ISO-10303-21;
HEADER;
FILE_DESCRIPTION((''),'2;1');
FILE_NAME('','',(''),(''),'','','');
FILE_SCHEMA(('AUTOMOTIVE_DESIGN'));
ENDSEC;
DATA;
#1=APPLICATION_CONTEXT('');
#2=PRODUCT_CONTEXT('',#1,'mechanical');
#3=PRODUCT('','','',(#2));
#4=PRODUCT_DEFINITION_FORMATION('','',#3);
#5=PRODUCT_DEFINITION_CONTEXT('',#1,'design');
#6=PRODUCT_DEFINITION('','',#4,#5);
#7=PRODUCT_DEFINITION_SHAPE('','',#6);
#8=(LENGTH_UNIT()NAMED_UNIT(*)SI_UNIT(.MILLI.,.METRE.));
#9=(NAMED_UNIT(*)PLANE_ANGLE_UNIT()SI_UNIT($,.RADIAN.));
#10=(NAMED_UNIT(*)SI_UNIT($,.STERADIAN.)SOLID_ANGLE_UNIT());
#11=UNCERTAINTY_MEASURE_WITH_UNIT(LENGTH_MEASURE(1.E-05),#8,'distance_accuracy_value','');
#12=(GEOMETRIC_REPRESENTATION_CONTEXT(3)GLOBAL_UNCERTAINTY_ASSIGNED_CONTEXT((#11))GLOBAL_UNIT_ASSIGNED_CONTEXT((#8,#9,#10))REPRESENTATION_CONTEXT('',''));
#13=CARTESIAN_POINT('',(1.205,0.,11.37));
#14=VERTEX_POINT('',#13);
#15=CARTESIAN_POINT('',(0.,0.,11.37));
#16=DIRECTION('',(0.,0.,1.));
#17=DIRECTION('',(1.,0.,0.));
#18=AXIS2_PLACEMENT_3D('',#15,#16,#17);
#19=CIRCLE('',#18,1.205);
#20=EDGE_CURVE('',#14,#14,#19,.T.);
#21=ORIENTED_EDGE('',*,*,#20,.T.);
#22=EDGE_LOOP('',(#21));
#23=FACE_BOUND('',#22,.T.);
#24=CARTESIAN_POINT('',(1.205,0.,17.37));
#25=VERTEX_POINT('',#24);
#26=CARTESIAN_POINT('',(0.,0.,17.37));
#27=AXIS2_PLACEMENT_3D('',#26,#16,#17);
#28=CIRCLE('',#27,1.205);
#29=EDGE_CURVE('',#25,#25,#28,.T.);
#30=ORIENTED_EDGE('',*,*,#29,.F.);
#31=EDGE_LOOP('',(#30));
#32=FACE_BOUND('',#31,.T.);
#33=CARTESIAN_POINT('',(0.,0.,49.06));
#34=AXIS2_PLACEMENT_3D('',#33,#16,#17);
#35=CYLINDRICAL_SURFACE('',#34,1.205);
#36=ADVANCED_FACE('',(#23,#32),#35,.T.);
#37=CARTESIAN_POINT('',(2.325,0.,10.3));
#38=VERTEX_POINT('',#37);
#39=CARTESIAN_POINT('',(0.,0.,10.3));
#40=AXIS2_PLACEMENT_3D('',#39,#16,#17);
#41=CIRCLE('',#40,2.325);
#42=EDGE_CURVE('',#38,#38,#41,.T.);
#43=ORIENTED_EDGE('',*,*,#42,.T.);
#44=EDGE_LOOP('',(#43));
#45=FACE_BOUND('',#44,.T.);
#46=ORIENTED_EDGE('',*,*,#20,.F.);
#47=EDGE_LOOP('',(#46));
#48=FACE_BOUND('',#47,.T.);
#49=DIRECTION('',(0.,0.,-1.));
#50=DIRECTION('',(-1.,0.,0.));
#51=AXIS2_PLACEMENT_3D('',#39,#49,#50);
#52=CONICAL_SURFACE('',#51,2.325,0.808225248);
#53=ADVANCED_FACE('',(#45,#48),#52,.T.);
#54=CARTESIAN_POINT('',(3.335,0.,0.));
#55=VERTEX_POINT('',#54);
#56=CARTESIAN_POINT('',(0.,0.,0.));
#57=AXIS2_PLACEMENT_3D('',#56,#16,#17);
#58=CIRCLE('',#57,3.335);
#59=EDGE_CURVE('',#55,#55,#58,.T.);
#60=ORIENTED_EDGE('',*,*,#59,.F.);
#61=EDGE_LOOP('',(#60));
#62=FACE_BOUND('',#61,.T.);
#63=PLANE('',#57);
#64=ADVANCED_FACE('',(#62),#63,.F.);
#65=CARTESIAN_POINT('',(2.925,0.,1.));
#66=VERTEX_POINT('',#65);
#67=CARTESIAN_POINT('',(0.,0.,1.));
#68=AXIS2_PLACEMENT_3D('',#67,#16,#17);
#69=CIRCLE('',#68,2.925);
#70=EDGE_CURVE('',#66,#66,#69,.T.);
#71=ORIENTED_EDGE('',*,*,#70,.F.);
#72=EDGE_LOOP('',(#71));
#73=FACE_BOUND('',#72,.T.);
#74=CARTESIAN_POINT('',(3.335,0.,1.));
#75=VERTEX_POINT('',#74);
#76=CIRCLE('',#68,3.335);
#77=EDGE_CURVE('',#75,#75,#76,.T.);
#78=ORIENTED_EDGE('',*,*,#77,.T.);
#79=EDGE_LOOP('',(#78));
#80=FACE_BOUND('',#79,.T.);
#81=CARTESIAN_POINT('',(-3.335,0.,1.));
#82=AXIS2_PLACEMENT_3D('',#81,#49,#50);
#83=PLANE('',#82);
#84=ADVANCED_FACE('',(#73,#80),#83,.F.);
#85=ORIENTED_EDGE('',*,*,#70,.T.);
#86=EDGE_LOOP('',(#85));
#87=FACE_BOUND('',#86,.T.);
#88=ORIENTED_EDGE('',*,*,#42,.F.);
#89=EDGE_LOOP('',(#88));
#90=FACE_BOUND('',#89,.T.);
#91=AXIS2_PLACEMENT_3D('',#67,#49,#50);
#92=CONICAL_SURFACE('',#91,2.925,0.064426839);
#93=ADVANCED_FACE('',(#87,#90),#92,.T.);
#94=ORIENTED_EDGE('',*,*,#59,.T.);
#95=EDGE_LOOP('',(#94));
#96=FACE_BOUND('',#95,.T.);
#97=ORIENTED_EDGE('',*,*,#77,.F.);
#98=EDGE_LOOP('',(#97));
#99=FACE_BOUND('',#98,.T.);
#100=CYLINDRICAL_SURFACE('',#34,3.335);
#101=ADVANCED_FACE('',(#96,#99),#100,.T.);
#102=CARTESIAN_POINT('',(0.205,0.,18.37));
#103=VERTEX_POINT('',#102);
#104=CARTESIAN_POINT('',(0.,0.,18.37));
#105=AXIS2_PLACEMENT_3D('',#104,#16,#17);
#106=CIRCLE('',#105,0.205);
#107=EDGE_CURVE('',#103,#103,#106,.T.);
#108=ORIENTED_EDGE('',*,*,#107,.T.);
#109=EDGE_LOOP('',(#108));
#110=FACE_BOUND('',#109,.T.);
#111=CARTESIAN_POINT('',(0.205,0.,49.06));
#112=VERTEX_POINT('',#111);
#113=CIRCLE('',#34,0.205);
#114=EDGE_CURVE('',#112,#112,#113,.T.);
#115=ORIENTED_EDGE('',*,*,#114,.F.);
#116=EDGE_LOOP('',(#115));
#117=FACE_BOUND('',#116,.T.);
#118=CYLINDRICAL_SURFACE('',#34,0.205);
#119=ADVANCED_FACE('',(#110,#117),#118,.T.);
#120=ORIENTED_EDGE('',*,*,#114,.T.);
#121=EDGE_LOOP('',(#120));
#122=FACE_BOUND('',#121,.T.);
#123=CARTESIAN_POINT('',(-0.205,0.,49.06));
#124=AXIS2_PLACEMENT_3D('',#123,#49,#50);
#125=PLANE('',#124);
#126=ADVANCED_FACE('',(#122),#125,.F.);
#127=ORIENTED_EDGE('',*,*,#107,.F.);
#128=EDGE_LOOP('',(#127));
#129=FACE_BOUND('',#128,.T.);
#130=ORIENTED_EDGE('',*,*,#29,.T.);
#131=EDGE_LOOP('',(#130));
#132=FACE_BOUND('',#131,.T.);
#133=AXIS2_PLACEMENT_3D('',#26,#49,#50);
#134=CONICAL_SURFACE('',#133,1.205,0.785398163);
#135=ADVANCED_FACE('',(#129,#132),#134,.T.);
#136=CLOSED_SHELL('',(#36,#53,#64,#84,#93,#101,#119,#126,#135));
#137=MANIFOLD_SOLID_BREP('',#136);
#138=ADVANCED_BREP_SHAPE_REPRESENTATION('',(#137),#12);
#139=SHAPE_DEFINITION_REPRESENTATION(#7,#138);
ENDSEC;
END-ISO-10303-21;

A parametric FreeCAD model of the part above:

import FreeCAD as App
import Part
import Sketcher

V = App.Vector
Q = App.Units.Quantity


def add_polygon(sketch, points):
    """Adds a closed chain of lines whose ends are joined by coincident constraints."""
    first, n = sketch.GeometryCount, len(points)
    for a, b in zip(points, points[1:] + points[:1]):
        sketch.addGeometry(Part.LineSegment(App.Vector(*a, 0), App.Vector(*b, 0)), False)
    for i in range(n):
        sketch.addConstraint(Sketcher.Constraint("Coincident", first + i, 2, first + (i + 1) % n, 1))

doc = App.newDocument("Part")
params = doc.addObject("Spreadsheet::Sheet", "Params")
for row, (alias, value) in enumerate([
    ("sketch1_height", "1 mm"),
    ("sketch1_height2", "6 mm"),
    ("sketch1_width", "0.41 mm"),
    ("sketch1_height3", "30.69 mm"),
    ("sketch1_height4", "49.06 mm"),
    ("revolution_angle", "360 deg"),
], start=1):
    params.set(f"A{row}", alias)
    params.set(f"B{row}", "=" + value)
    params.setAlias(f"B{row}", alias)

body = doc.addObject("PartDesign::Body", "Body")

sketch1 = doc.addObject("Sketcher::SketchObject", "Sketch")
body.addObject(sketch1)
sketch1.AttachmentSupport = (doc.XZ_Plane, [""])
sketch1.MapMode = "FlatFace"
add_polygon(sketch1, [(-3.33, 0), (-3.33, 1), (-2.92, 1), (-2.33, 10.3), (-1.21, 11.37), (-1.21, 17.37), (-0.2, 18.37), (-0.2, 49.06), (0, 49.06), (0, 0)])
sketch1.addConstraint(Sketcher.Constraint("Vertical", 0))
sketch1.addConstraint(Sketcher.Constraint("Horizontal", 1))
sketch1.addConstraint(Sketcher.Constraint("Vertical", 4))
sketch1.addConstraint(Sketcher.Constraint("Vertical", 6))
sketch1.addConstraint(Sketcher.Constraint("Horizontal", 7))
sketch1.addConstraint(Sketcher.Constraint("Vertical", 8))
sketch1.addConstraint(Sketcher.Constraint("Horizontal", 9))
sketch1.addConstraint(Sketcher.Constraint("Coincident", 8, 2, -1, 1))
sketch1.addConstraint(Sketcher.Constraint("DistanceY", 0, 1, 0, 2, Q("1 mm")))
sketch1.addConstraint(Sketcher.Constraint("DistanceY", 4, 1, 4, 2, Q("6 mm")))
sketch1.addConstraint(Sketcher.Constraint("Angle", 5, Q("45 deg")))
sketch1.addConstraint(Sketcher.Constraint("DistanceX", 4, 2, 5, 2, Q("1 mm")))
sketch1.addConstraint(Sketcher.Constraint("DistanceX", 1, 1, 1, 2, Q("0.41 mm")))
sketch1.addConstraint(Sketcher.Constraint("DistanceY", 6, 1, 6, 2, Q("30.69 mm")))
sketch1.addConstraint(Sketcher.Constraint("DistanceY", 8, 2, 8, 1, Q("49.06 mm")))
sketch1.addConstraint(Sketcher.Constraint("DistanceY", -1, 1, 2, 2, Q("10.3 mm")))
sketch1.addConstraint(Sketcher.Constraint("DistanceX", 1, 2, 2, 2, Q("0.6 mm")))
sketch1.addConstraint(Sketcher.Constraint("DistanceX", 7, 1, 7, 2, Q("0.205 mm")))
sketch1.addConstraint(Sketcher.Constraint("DistanceX", 9, 2, 9, 1, Q("3.335 mm")))
sketch1.setExpression("Constraints[18]", "Params.sketch1_height")
sketch1.setExpression("Constraints[19]", "Params.sketch1_height2")
sketch1.setExpression("Constraints[22]", "Params.sketch1_width")
sketch1.setExpression("Constraints[23]", "Params.sketch1_height3")
sketch1.setExpression("Constraints[24]", "Params.sketch1_height4")
revolution = doc.addObject("PartDesign::Revolution", "Revolution")
body.addObject(revolution)
revolution.Profile = sketch1
revolution.ReferenceAxis = (sketch1, ["V_Axis"])
revolution.setExpression("Angle", "Params.revolution_angle")

doc.recompute()
